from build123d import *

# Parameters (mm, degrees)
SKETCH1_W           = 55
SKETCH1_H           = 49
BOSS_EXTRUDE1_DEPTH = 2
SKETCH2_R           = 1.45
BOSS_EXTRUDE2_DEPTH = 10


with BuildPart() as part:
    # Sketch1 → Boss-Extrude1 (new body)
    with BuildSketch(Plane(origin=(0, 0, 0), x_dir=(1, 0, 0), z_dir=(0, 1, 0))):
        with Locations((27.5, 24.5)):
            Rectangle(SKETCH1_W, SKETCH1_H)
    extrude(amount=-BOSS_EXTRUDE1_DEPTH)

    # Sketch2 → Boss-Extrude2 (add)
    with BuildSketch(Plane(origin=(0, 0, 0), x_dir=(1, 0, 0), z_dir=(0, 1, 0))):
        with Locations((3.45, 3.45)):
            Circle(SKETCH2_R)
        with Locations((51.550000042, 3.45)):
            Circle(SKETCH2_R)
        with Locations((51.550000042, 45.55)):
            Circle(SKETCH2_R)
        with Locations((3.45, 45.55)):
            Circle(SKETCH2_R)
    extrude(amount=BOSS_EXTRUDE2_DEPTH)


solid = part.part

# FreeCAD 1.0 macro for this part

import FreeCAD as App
import Part
import Sketcher
Q = App.Units.Quantity

doc = App.newDocument("Part")
body = doc.addObject("PartDesign::Body", "Body")

# Sketch on XZ plane
sketch1 = body.newObject("Sketcher::SketchObject", "Sketch")
sketch1.AttachmentSupport = (doc.getObject("XZ_Plane"), [""])
sketch1.MapMode = "FlatFace"
sketch1.addGeometry([
    Part.LineSegment(App.Vector(0, -49, 0), App.Vector(0, 0, 0)),
    Part.LineSegment(App.Vector(0, 0, 0), App.Vector(55, 0, 0)),
    Part.LineSegment(App.Vector(55, 0, 0), App.Vector(55, -49, 0)),
    Part.LineSegment(App.Vector(55, -49, 0), App.Vector(0, -49, 0)),
], False)
sketch1.addConstraint([
    Sketcher.Constraint("Coincident", 0, 2, 1, 1),
    Sketcher.Constraint("Coincident", 1, 2, 2, 1),
    Sketcher.Constraint("Coincident", 2, 2, 3, 1),
    Sketcher.Constraint("Coincident", 3, 2, 0, 1),
    Sketcher.Constraint("Vertical", 0),
    Sketcher.Constraint("Horizontal", 1),
    Sketcher.Constraint("Vertical", 2),
    Sketcher.Constraint("Horizontal", 3),
    Sketcher.Constraint("Coincident", 0, 2, -1, 1),
    Sketcher.Constraint("DistanceX", 1, 1, 1, 2, Q("55 mm")),
    Sketcher.Constraint("DistanceY", 0, 1, 0, 2, Q("49 mm")),
])
pad1 = body.newObject("PartDesign::Pad", "Pad")
pad1.Profile = sketch1
pad1.Length = 2

# Sketch on XZ plane
sketch2 = body.newObject("Sketcher::SketchObject", "Sketch001")
sketch2.AttachmentSupport = (doc.getObject("XZ_Plane"), [""])
sketch2.MapMode = "FlatFace"
sketch2.addGeometry([
    Part.Circle(App.Vector(3.45, -3.45, 0), App.Vector(0, 0, 1), 1.45),
    Part.Circle(App.Vector(51.55, -3.45, 0), App.Vector(0, 0, 1), 1.45),
    Part.Circle(App.Vector(51.55, -45.55, 0), App.Vector(0, 0, 1), 1.45),
    Part.Circle(App.Vector(3.45, -45.55, 0), App.Vector(0, 0, 1), 1.45),
], False)
sketch2.addConstraint([
    Sketcher.Constraint("Equal", 0, 1),
    Sketcher.Constraint("Equal", 1, 2),
    Sketcher.Constraint("Equal", 2, 3),
    Sketcher.Constraint("Horizontal", 0, 3, 1, 3),
    Sketcher.Constraint("Horizontal", 2, 3, 3, 3),
    Sketcher.Constraint("Vertical", 1, 3, 2, 3),
    Sketcher.Constraint("Vertical", 0, 3, 3, 3),
    Sketcher.Constraint("Diameter", 0, Q("2.9 mm")),
    Sketcher.Constraint("DistanceX", 0, 3, 1, 3, Q("48.1 mm")),
    Sketcher.Constraint("DistanceY", 2, 3, 1, 3, Q("42.1 mm")),
    Sketcher.Constraint("DistanceX", -1, 1, 0, 3, Q("3.45 mm")),
    Sketcher.Constraint("DistanceY", 0, 3, -1, 1, Q("3.45 mm")),
])
pad2 = body.newObject("PartDesign::Pad", "Pad001")
pad2.Profile = sketch2
pad2.Length = 10
pad2.Reversed = True

doc.recompute()
